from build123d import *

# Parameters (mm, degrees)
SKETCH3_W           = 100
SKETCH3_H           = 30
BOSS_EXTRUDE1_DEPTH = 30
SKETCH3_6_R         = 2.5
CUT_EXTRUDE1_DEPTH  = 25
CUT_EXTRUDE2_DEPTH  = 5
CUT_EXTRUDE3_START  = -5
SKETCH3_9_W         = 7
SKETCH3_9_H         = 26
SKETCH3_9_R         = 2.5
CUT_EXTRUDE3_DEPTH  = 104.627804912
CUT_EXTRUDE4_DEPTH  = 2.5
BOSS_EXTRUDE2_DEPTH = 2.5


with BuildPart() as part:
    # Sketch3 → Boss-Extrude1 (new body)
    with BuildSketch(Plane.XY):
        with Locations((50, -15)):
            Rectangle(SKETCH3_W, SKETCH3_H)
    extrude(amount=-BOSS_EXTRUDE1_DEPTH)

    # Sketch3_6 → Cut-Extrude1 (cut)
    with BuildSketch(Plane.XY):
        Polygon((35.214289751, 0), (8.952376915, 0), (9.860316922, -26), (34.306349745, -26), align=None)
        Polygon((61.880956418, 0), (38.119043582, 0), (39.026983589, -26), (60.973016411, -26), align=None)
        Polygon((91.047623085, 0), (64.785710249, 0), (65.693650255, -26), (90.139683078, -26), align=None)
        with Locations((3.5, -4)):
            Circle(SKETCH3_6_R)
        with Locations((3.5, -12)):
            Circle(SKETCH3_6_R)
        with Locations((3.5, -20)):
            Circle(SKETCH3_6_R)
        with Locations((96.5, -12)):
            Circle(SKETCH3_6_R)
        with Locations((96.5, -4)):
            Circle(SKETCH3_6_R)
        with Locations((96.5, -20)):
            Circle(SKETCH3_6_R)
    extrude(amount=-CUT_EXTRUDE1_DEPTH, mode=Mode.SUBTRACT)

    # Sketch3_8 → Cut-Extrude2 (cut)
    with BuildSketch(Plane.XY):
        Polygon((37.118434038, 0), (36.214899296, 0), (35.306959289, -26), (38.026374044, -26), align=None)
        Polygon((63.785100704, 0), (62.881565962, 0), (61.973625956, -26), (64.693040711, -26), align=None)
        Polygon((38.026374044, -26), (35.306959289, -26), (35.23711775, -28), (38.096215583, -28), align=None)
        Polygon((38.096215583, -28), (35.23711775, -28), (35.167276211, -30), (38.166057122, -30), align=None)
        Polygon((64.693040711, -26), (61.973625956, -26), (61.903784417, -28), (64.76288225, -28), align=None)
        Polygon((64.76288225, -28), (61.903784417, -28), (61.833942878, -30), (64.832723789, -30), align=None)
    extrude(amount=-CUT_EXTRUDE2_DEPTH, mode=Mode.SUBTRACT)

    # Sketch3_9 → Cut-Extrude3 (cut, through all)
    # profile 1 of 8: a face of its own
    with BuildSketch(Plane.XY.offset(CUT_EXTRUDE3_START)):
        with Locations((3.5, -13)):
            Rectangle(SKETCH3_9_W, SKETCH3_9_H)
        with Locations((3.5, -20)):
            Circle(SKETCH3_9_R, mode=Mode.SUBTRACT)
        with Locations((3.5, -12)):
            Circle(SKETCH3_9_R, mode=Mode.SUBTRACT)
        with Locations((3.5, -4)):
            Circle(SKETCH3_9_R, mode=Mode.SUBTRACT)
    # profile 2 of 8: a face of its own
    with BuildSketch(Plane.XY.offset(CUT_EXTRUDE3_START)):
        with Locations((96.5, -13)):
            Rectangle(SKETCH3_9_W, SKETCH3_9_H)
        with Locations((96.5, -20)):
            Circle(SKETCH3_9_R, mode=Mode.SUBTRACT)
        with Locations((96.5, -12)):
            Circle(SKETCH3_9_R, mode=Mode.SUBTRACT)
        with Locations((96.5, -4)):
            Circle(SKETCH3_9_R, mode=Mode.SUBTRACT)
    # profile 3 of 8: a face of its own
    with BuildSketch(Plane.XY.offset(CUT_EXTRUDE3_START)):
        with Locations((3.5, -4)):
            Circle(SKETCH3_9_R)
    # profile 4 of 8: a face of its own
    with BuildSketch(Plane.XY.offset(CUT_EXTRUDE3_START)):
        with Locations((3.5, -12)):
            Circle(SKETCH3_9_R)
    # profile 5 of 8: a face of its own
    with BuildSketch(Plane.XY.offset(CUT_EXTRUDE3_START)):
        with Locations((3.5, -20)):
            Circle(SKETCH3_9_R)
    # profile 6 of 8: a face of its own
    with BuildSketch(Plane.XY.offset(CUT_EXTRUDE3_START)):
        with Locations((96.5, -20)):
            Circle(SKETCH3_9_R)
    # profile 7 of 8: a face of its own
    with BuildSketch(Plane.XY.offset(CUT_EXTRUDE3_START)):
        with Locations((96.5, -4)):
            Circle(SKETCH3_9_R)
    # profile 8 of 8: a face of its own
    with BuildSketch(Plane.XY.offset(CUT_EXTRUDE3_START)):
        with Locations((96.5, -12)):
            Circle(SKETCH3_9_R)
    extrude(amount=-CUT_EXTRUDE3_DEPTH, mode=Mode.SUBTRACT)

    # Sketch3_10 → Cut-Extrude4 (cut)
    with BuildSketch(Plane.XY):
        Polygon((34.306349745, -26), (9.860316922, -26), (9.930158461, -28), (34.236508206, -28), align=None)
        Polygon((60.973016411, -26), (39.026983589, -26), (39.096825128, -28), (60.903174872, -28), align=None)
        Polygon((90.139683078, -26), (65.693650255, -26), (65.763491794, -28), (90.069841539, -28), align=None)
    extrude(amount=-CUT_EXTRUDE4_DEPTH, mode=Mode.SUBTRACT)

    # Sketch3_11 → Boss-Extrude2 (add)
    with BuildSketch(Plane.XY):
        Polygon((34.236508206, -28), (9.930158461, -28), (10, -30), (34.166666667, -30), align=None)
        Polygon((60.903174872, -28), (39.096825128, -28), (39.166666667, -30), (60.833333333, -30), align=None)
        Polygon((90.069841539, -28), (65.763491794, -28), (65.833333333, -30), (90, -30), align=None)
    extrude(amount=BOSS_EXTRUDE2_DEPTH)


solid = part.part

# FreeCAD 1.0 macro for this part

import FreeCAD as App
import Part
import Sketcher
Q = App.Units.Quantity


def add_polygon(sketch, points):
    """Adds a closed chain of lines whose ends are joined by coincident constraints."""
    first, n = sketch.GeometryCount, len(points)
    for a, b in zip(points, points[1:] + points[:1]):
        sketch.addGeometry(Part.LineSegment(App.Vector(*a, 0), App.Vector(*b, 0)), False)
    for i in range(n):
        sketch.addConstraint(Sketcher.Constraint("Coincident", first + i, 2, first + (i + 1) % n, 1))

doc = App.newDocument("Part")
body = doc.addObject("PartDesign::Body", "Body")

sketch1 = doc.addObject("Sketcher::SketchObject", "Sketch")
body.addObject(sketch1)
sketch1.AttachmentSupport = (doc.XY_Plane, [""])
sketch1.MapMode = "FlatFace"
add_polygon(sketch1, [(0, 0), (0, -30), (100, -30), (100, 0)])
sketch1.addConstraint([
    Sketcher.Constraint("Vertical", 0),
    Sketcher.Constraint("Horizontal", 1),
    Sketcher.Constraint("Vertical", 2),
    Sketcher.Constraint("Horizontal", 3),
    Sketcher.Constraint("Coincident", 3, 2, -1, 1),
    Sketcher.Constraint("DistanceX", 1, 1, 1, 2, 100.0),
    Sketcher.Constraint("DistanceY", 0, 2, 0, 1, 30.0),
])
pad1 = doc.addObject("PartDesign::Pad", "Pad")
body.addObject(pad1)
pad1.Profile = sketch1
pad1.Length = 30
pad1.Reversed = True

sketch2 = doc.addObject("Sketcher::SketchObject", "Sketch001")
body.addObject(sketch2)
sketch2.AttachmentSupport = (doc.XY_Plane, [""])
sketch2.MapMode = "FlatFace"
add_polygon(sketch2, [(35.21429, 0), (8.952377, 0), (9.860317, -26), (34.30635, -26)])
add_polygon(sketch2, [(61.880956, 0), (38.119044, 0), (39.026984, -26), (60.973016, -26)])
add_polygon(sketch2, [(91.047623, 0), (64.78571, 0), (65.69365, -26), (90.139683, -26)])
sketch2.addGeometry(Part.Circle(App.Vector(3.5, -4, 0), App.Vector(0, 0, 1), 2.5), False)
sketch2.addGeometry(Part.Circle(App.Vector(3.5, -12, 0), App.Vector(0, 0, 1), 2.5), False)
sketch2.addGeometry(Part.Circle(App.Vector(3.5, -20, 0), App.Vector(0, 0, 1), 2.5), False)
sketch2.addGeometry(Part.Circle(App.Vector(96.5, -12, 0), App.Vector(0, 0, 1), 2.5), False)
sketch2.addGeometry(Part.Circle(App.Vector(96.5, -4, 0), App.Vector(0, 0, 1), 2.5), False)
sketch2.addGeometry(Part.Circle(App.Vector(96.5, -20, 0), App.Vector(0, 0, 1), 2.5), False)
sketch2.addConstraint([
    Sketcher.Constraint("Horizontal", 0),
    Sketcher.Constraint("Horizontal", 2),
    Sketcher.Constraint("Horizontal", 4),
    Sketcher.Constraint("Horizontal", 6),
    Sketcher.Constraint("Horizontal", 8),
    Sketcher.Constraint("Horizontal", 10),
    Sketcher.Constraint("Equal", 12, 13),
    Sketcher.Constraint("Equal", 13, 14),
    Sketcher.Constraint("Equal", 14, 15),
    Sketcher.Constraint("Equal", 15, 16),
    Sketcher.Constraint("Equal", 16, 17),
    Sketcher.Constraint("PointOnObject", 0, 2, -1),
    Sketcher.Constraint("PointOnObject", 4, 2, -1),
    Sketcher.Constraint("PointOnObject", 8, 2, -1),
    Sketcher.Constraint("Parallel", 1, 5),
    Sketcher.Constraint("Parallel", 3, 7),
    Sketcher.Constraint("Parallel", 5, 9),
    Sketcher.Constraint("Parallel", 7, 11),
    Sketcher.Constraint("Horizontal", 13, 3, 15, 3),
    Sketcher.Constraint("Horizontal", 12, 3, 16, 3),
    Sketcher.Constraint("Horizontal", 14, 3, 17, 3),
    Sketcher.Constraint("Horizontal", 2, 2, 5, 2),
    Sketcher.Constraint("Horizontal", 6, 2, 9, 2),
    Sketcher.Constraint("Vertical", 12, 3, 13, 3),
    Sketcher.Constraint("Vertical", 13, 3, 14, 3),
    Sketcher.Constraint("Vertical", 15, 3, 16, 3),
    Sketcher.Constraint("Vertical", 16, 3, 17, 3),
    Sketcher.Constraint("Equal", 0, 8),
    Sketcher.Constraint("Equal", 1, 3),
    Sketcher.Constraint("Diameter", 12, 5.0),
    Sketcher.Constraint("Angle", 1, Q("-88 deg")),
    Sketcher.Constraint("DistanceY", 12, 3, -1, 1, 4.0),
    Sketcher.Constraint("DistanceY", 13, 3, -1, 1, 12.0),
    Sketcher.Constraint("DistanceY", 14, 3, -1, 1, 20.0),
    Sketcher.Constraint("DistanceY", 1, 2, -1, 1, 26.0),
    Sketcher.Constraint("DistanceX", 13, 3, 15, 3, 93.0),
    Sketcher.Constraint("DistanceX", -1, 1, 12, 3, 3.5),
    Sketcher.Constraint("DistanceX", 0, 2, 0, 1, 26.261913),
    Sketcher.Constraint("DistanceX", 4, 2, 4, 1, 23.761913),
    Sketcher.Constraint("DistanceX", -1, 1, 2, 2, 34.30635),
    Sketcher.Constraint("DistanceX", -1, 1, 8, 2, 64.78571),
    Sketcher.Constraint("DistanceX", -1, 1, 4, 2, 38.119044),
])
pocket1 = doc.addObject("PartDesign::Pocket", "Pocket")
body.addObject(pocket1)
pocket1.Profile = sketch2
pocket1.Length = 25

sketch3 = doc.addObject("Sketcher::SketchObject", "Sketch002")
body.addObject(sketch3)
sketch3.AttachmentSupport = (doc.XY_Plane, [""])
sketch3.MapMode = "FlatFace"
add_polygon(sketch3, [(37.118434, 0), (36.214899, 0), (35.167276, -30), (38.166057, -30), (38.026374, -26)])
add_polygon(sketch3, [(63.785101, 0), (62.881566, 0), (61.973626, -26), (61.833943, -30), (64.832724, -30)])
sketch3.addConstraint([
    Sketcher.Constraint("Horizontal", 0),
    Sketcher.Constraint("Horizontal", 2),
    Sketcher.Constraint("Horizontal", 5),
    Sketcher.Constraint("Horizontal", 8),
    Sketcher.Constraint("PointOnObject", 0, 2, -1),
    Sketcher.Constraint("PointOnObject", 5, 2, -1),
    Sketcher.Constraint("Parallel", 3, 4),
    Sketcher.Constraint("Parallel", 1, 6),
    Sketcher.Constraint("Parallel", 6, 7),
    Sketcher.Constraint("Parallel", 4, 9),
    Sketcher.Constraint("Horizontal", 3, 2, 6, 2),
    Sketcher.Constraint("Horizontal", 2, 2, 7, 2),
    Sketcher.Constraint("Equal", 0, 5),
    Sketcher.Constraint("Equal", 4, 6),
    Sketcher.Constraint("Angle", 1, Q("-92 deg")),
    Sketcher.Constraint("DistanceY", 1, 2, -1, 1, 30.0),
    Sketcher.Constraint("DistanceY", 3, 2, -1, 1, 26.0),
    Sketcher.Constraint("DistanceX", 2, 1, 2, 2, 2.998781),
    Sketcher.Constraint("DistanceX", -1, 1, 0, 2, 36.214899),
    Sketcher.Constraint("DistanceX", -1, 1, 9, 2, 63.785101),
])
pocket2 = doc.addObject("PartDesign::Pocket", "Pocket001")
body.addObject(pocket2)
pocket2.Profile = sketch3
pocket2.Length = 5

sketch4 = doc.addObject("Sketcher::SketchObject", "Sketch003")
body.addObject(sketch4)
sketch4.AttachmentSupport = (doc.XY_Plane, [""])
sketch4.MapMode = "FlatFace"
sketch4.AttachmentOffset = App.Placement(App.Vector(0, 0, -5), App.Rotation())
add_polygon(sketch4, [(0, 0), (0, -26), (7, -26), (7, 0)])
add_polygon(sketch4, [(93, 0), (93, -26), (100, -26), (100, 0)])
sketch4.addConstraint([
    Sketcher.Constraint("Vertical", 0),
    Sketcher.Constraint("Horizontal", 1),
    Sketcher.Constraint("Vertical", 2),
    Sketcher.Constraint("Horizontal", 3),
    Sketcher.Constraint("Vertical", 4),
    Sketcher.Constraint("Horizontal", 5),
    Sketcher.Constraint("Vertical", 6),
    Sketcher.Constraint("Horizontal", 7),
    Sketcher.Constraint("Coincident", 3, 2, -1, 1),
    Sketcher.Constraint("PointOnObject", 6, 2, -1),
    Sketcher.Constraint("Horizontal", 1, 2, 4, 2),
    Sketcher.Constraint("Equal", 3, 5),
    Sketcher.Constraint("DistanceX", 1, 1, 1, 2, 7.0),
    Sketcher.Constraint("DistanceY", 0, 2, 0, 1, 26.0),
    Sketcher.Constraint("DistanceX", -1, 1, 4, 2, 93.0),
])
pocket3 = doc.addObject("PartDesign::Pocket", "Pocket002")
body.addObject(pocket3)
pocket3.Profile = sketch4
pocket3.Length = 104.627805

sketch5 = doc.addObject("Sketcher::SketchObject", "Sketch004")
body.addObject(sketch5)
sketch5.AttachmentSupport = (doc.XY_Plane, [""])
sketch5.MapMode = "FlatFace"
add_polygon(sketch5, [(34.30635, -26), (9.860317, -26), (9.930158, -28), (34.236508, -28)])
add_polygon(sketch5, [(60.973016, -26), (39.026984, -26), (39.096825, -28), (60.903175, -28)])
add_polygon(sketch5, [(90.139683, -26), (65.69365, -26), (65.763492, -28), (90.069842, -28)])
sketch5.addConstraint([
    Sketcher.Constraint("Horizontal", 0),
    Sketcher.Constraint("Horizontal", 2),
    Sketcher.Constraint("Horizontal", 4),
    Sketcher.Constraint("Horizontal", 6),
    Sketcher.Constraint("Horizontal", 8),
    Sketcher.Constraint("Horizontal", 10),
    Sketcher.Constraint("Parallel", 1, 5),
    Sketcher.Constraint("Parallel", 3, 7),
    Sketcher.Constraint("Parallel", 5, 9),
    Sketcher.Constraint("Parallel", 7, 11),
    Sketcher.Constraint("Horizontal", 3, 2, 4, 2),
    Sketcher.Constraint("Horizontal", 2, 2, 5, 2),
    Sketcher.Constraint("Horizontal", 7, 2, 8, 2),
    Sketcher.Constraint("Horizontal", 6, 2, 9, 2),
    Sketcher.Constraint("Equal", 0, 8),
    Sketcher.Constraint("Equal", 1, 3),
    Sketcher.Constraint("Angle", 1, Q("-88 deg")),
    Sketcher.Constraint("DistanceY", 0, 2, -1, 1, 26.0),
    Sketcher.Constraint("DistanceY", 1, 2, -1, 1, 28.0),
    Sketcher.Constraint("DistanceX", 2, 1, 2, 2, 24.30635),
    Sketcher.Constraint("DistanceX", 6, 1, 6, 2, 21.80635),
    Sketcher.Constraint("DistanceX", 3, 2, 8, 2, 31.387301),
    Sketcher.Constraint("DistanceX", -1, 1, 1, 2, 9.930158),
    Sketcher.Constraint("DistanceX", 0, 2, 5, 2, 29.236508),
])
pocket4 = doc.addObject("PartDesign::Pocket", "Pocket003")
body.addObject(pocket4)
pocket4.Profile = sketch5
pocket4.Length = 2.5

sketch6 = doc.addObject("Sketcher::SketchObject", "Sketch005")
body.addObject(sketch6)
sketch6.AttachmentSupport = (doc.XY_Plane, [""])
sketch6.MapMode = "FlatFace"
add_polygon(sketch6, [(34.236508, -28), (9.930158, -28), (10, -30), (34.166667, -30)])
add_polygon(sketch6, [(60.903175, -28), (39.096825, -28), (39.166667, -30), (60.833333, -30)])
add_polygon(sketch6, [(90.069842, -28), (65.763492, -28), (65.833333, -30), (90, -30)])
sketch6.addConstraint([
    Sketcher.Constraint("Horizontal", 0),
    Sketcher.Constraint("Horizontal", 2),
    Sketcher.Constraint("Horizontal", 4),
    Sketcher.Constraint("Horizontal", 6),
    Sketcher.Constraint("Horizontal", 8),
    Sketcher.Constraint("Horizontal", 10),
    Sketcher.Constraint("Parallel", 1, 5),
    Sketcher.Constraint("Parallel", 3, 7),
    Sketcher.Constraint("Parallel", 5, 9),
    Sketcher.Constraint("Parallel", 7, 11),
    Sketcher.Constraint("Horizontal", 3, 2, 4, 2),
    Sketcher.Constraint("Horizontal", 2, 2, 5, 2),
    Sketcher.Constraint("Horizontal", 7, 2, 8, 2),
    Sketcher.Constraint("Horizontal", 6, 2, 9, 2),
    Sketcher.Constraint("Equal", 0, 8),
    Sketcher.Constraint("Equal", 1, 3),
    Sketcher.Constraint("Angle", 1, Q("-88 deg")),
    Sketcher.Constraint("DistanceY", 0, 2, -1, 1, 28.0),
    Sketcher.Constraint("DistanceX", -1, 1, 1, 2, 10.0),
    Sketcher.Constraint("DistanceY", 1, 2, -1, 1, 30.0),
    Sketcher.Constraint("DistanceX", -1, 1, 10, 2, 90.0),
    Sketcher.Constraint("DistanceX", 2, 2, 5, 2, 5.0),
    Sketcher.Constraint("DistanceX", 6, 2, 9, 2, 5.0),
    Sketcher.Constraint("DistanceX", 0, 2, 0, 1, 24.30635),
])
pad2 = doc.addObject("PartDesign::Pad", "Pad001")
body.addObject(pad2)
pad2.Profile = sketch6
pad2.Length = 2.5

doc.recompute()
